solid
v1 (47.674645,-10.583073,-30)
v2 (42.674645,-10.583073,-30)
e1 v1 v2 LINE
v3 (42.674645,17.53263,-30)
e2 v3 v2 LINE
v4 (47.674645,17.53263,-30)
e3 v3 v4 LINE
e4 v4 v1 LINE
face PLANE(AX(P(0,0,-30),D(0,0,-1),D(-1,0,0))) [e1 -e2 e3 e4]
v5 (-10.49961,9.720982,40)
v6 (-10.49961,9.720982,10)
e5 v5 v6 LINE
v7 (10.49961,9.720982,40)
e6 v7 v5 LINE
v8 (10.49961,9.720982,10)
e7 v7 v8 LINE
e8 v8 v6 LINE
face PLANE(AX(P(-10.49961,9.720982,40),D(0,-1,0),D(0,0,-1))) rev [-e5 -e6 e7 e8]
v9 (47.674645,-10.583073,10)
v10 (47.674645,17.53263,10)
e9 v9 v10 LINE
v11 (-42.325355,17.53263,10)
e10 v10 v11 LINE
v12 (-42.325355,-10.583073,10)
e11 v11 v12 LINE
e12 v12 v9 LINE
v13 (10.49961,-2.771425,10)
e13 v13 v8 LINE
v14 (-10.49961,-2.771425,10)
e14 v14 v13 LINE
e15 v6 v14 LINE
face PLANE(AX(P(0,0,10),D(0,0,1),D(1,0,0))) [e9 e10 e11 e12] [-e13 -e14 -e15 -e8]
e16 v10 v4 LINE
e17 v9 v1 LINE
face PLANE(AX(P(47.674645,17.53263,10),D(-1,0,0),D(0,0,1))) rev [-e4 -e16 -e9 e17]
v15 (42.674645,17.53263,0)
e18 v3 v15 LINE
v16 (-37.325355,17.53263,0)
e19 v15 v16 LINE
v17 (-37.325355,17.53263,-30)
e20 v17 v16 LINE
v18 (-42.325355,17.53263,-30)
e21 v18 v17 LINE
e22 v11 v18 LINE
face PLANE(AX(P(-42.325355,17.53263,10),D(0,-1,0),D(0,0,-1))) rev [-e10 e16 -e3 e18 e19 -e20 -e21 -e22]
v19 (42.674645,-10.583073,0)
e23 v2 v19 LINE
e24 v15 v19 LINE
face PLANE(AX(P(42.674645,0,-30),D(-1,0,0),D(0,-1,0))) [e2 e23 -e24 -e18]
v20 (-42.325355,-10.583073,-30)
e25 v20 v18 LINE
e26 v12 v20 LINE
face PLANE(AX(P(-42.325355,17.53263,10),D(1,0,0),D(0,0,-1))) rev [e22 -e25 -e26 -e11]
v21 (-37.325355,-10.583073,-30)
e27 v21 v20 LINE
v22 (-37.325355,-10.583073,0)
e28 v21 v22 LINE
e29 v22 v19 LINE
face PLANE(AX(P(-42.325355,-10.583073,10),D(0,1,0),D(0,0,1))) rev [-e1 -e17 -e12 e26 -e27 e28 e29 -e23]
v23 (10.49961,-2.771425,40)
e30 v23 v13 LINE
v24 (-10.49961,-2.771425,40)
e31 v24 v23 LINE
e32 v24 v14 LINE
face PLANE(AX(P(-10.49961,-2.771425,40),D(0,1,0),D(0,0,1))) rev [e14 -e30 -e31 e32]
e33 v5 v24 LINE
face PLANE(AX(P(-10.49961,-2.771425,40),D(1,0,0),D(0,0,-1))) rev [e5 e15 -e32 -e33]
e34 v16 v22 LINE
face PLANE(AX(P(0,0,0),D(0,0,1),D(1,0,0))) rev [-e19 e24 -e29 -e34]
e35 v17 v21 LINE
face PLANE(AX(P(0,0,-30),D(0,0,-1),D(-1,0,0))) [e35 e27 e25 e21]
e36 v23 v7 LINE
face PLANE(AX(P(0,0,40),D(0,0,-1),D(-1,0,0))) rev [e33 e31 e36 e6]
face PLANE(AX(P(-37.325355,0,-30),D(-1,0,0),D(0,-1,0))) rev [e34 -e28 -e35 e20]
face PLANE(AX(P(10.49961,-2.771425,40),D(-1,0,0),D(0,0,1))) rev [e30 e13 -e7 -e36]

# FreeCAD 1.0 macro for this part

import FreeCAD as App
import Part
import Sketcher
Q = App.Units.Quantity

doc = App.newDocument("Part")
params = doc.addObject("Spreadsheet::Sheet", "Params")
for row, (alias, value) in enumerate([
    ("sketch1_width", "90 mm"),
    ("pad1_length", "10 mm"),
    ("pad2_length", "30 mm"),
    ("sketch3_width", "5 mm"),
    ("pad3_length", "30 mm"),
], start=1):
    params.set(f"A{row}", alias)
    params.set(f"B{row}", "=" + value)
    params.setAlias(f"B{row}", alias)

body = doc.addObject("PartDesign::Body", "Body")

sketch1 = body.newObject("Sketcher::SketchObject", "Sketch")
sketch1.AttachmentSupport = (doc.getObject("XY_Plane"), [""])
sketch1.MapMode = "FlatFace"
sketch1.addGeometry([
    Part.LineSegment(App.Vector(-42.325355, 17.53263, 0), App.Vector(-42.325355, -10.583073, 0)),
    Part.LineSegment(App.Vector(-42.325355, -10.583073, 0), App.Vector(47.674645, -10.583073, 0)),
    Part.LineSegment(App.Vector(47.674645, -10.583073, 0), App.Vector(47.674645, 17.53263, 0)),
    Part.LineSegment(App.Vector(47.674645, 17.53263, 0), App.Vector(-42.325355, 17.53263, 0)),
], False)
sketch1.addConstraint([
    Sketcher.Constraint("Coincident", 0, 2, 1, 1),
    Sketcher.Constraint("Coincident", 1, 2, 2, 1),
    Sketcher.Constraint("Coincident", 2, 2, 3, 1),
    Sketcher.Constraint("Coincident", 3, 2, 0, 1),
    Sketcher.Constraint("Vertical", 0),
    Sketcher.Constraint("Horizontal", 1),
    Sketcher.Constraint("Vertical", 2),
    Sketcher.Constraint("Horizontal", 3),
    Sketcher.Constraint("DistanceX", 1, 1, 1, 2, Q("90 mm")),
    Sketcher.Constraint("DistanceY", 0, 2, 0, 1, Q("28.115702 mm")),
    Sketcher.Constraint("DistanceY", -1, 1, 2, 2, Q("17.53263 mm")),
    Sketcher.Constraint("DistanceX", 0, 2, -1, 1, Q("42.325355 mm")),
])
sketch1.setExpression("Constraints[8]", "Params.sketch1_width")
pad1 = body.newObject("PartDesign::Pad", "Pad")
pad1.Profile = sketch1
pad1.setExpression("Length", "Params.pad1_length")

sketch2 = body.newObject("Sketcher::SketchObject", "Sketch001")
sketch2.AttachmentSupport = (doc.getObject("XY_Plane"), [""])
sketch2.MapMode = "FlatFace"
sketch2.AttachmentOffset = App.Placement(App.Vector(0, 0, 10), App.Rotation())
sketch2.addGeometry([
    Part.LineSegment(App.Vector(-10.49961, 9.720982, 0), App.Vector(-10.49961, -2.771425, 0)),
    Part.LineSegment(App.Vector(-10.49961, -2.771425, 0), App.Vector(10.49961, -2.771425, 0)),
    Part.LineSegment(App.Vector(10.49961, -2.771425, 0), App.Vector(10.49961, 9.720982, 0)),
    Part.LineSegment(App.Vector(10.49961, 9.720982, 0), App.Vector(-10.49961, 9.720982, 0)),
], False)
sketch2.addConstraint([
    Sketcher.Constraint("Coincident", 0, 2, 1, 1),
    Sketcher.Constraint("Coincident", 1, 2, 2, 1),
    Sketcher.Constraint("Coincident", 2, 2, 3, 1),
    Sketcher.Constraint("Coincident", 3, 2, 0, 1),
    Sketcher.Constraint("Vertical", 0),
    Sketcher.Constraint("Horizontal", 1),
    Sketcher.Constraint("Vertical", 2),
    Sketcher.Constraint("Horizontal", 3),
    Sketcher.Constraint("DistanceX", 1, 1, 1, 2, Q("20.999219 mm")),
    Sketcher.Constraint("DistanceY", 0, 2, 0, 1, Q("12.492407 mm")),
    Sketcher.Constraint("DistanceX", 0, 2, -1, 1, Q("10.49961 mm")),
    Sketcher.Constraint("DistanceY", 0, 2, -1, 1, Q("2.771425 mm")),
])
pad2 = body.newObject("PartDesign::Pad", "Pad001")
pad2.Profile = sketch2
pad2.setExpression("Length", "Params.pad2_length")

sketch3 = body.newObject("Sketcher::SketchObject", "Sketch002")
sketch3.AttachmentSupport = (doc.getObject("XY_Plane"), [""])
sketch3.MapMode = "FlatFace"
sketch3.addGeometry([
    Part.LineSegment(App.Vector(-37.325355, 17.53263, 0), App.Vector(-37.325355, -10.583073, 0)),
    Part.LineSegment(App.Vector(-37.325355, -10.583073, 0), App.Vector(-42.325355, -10.583073, 0)),
    Part.LineSegment(App.Vector(-42.325355, -10.583073, 0), App.Vector(-42.325355, 17.53263, 0)),
    Part.LineSegment(App.Vector(-42.325355, 17.53263, 0), App.Vector(-37.325355, 17.53263, 0)),
    Part.LineSegment(App.Vector(47.674645, 17.53263, 0), App.Vector(47.674645, -10.583073, 0)),
    Part.LineSegment(App.Vector(47.674645, -10.583073, 0), App.Vector(42.674645, -10.583073, 0)),
    Part.LineSegment(App.Vector(42.674645, -10.583073, 0), App.Vector(42.674645, 17.53263, 0)),
    Part.LineSegment(App.Vector(42.674645, 17.53263, 0), App.Vector(47.674645, 17.53263, 0)),
], False)
sketch3.addConstraint([
    Sketcher.Constraint("Coincident", 0, 2, 1, 1),
    Sketcher.Constraint("Coincident", 1, 2, 2, 1),
    Sketcher.Constraint("Coincident", 2, 2, 3, 1),
    Sketcher.Constraint("Coincident", 3, 2, 0, 1),
    Sketcher.Constraint("Coincident", 4, 2, 5, 1),
    Sketcher.Constraint("Coincident", 5, 2, 6, 1),
    Sketcher.Constraint("Coincident", 6, 2, 7, 1),
    Sketcher.Constraint("Coincident", 7, 2, 4, 1),
    Sketcher.Constraint("Vertical", 0),
    Sketcher.Constraint("Horizontal", 1),
    Sketcher.Constraint("Vertical", 2),
    Sketcher.Constraint("Horizontal", 3),
    Sketcher.Constraint("Vertical", 4),
    Sketcher.Constraint("Horizontal", 5),
    Sketcher.Constraint("Vertical", 6),
    Sketcher.Constraint("Horizontal", 7),
    Sketcher.Constraint("Horizontal", 1, 2, 4, 2),
    Sketcher.Constraint("Horizontal", 3, 2, 6, 2),
    Sketcher.Constraint("Equal", 3, 5),
    Sketcher.Constraint("DistanceX", 1, 2, 1, 1, Q("5 mm")),
    Sketcher.Constraint("DistanceX", 0, 2, 4, 2, Q("85 mm")),
    Sketcher.Constraint("DistanceY", 0, 2, 0, 1, Q("28.115702 mm")),
    Sketcher.Constraint("DistanceY", -1, 1, 2, 2, Q("17.53263 mm")),
    Sketcher.Constraint("DistanceX", 0, 2, -1, 1, Q("37.325355 mm")),
])
sketch3.setExpression("Constraints[19]", "Params.sketch3_width")
pad3 = body.newObject("PartDesign::Pad", "Pad002")
pad3.Profile = sketch3
pad3.setExpression("Length", "Params.pad3_length")
pad3.Reversed = True

doc.recompute()
